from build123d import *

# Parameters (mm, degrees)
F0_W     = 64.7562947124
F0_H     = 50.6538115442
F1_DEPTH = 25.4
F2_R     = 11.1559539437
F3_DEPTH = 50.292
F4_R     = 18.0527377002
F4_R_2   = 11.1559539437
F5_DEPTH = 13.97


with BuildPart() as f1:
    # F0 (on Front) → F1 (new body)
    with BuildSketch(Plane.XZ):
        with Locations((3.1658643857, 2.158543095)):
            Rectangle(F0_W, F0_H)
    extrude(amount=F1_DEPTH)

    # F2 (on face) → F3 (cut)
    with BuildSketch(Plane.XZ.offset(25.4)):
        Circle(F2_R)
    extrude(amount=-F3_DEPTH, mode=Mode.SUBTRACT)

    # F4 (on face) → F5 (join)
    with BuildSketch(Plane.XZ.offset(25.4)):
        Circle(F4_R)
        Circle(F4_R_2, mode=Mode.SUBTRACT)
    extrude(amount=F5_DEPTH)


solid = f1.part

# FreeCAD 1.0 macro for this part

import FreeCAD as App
import Part
import Sketcher

V = App.Vector
Q = App.Units.Quantity


def add_polygon(sketch, points):
    """Adds a closed chain of lines whose ends are joined by coincident constraints."""
    first, n = sketch.GeometryCount, len(points)
    for a, b in zip(points, points[1:] + points[:1]):
        sketch.addGeometry(Part.LineSegment(App.Vector(*a, 0), App.Vector(*b, 0)), False)
    for i in range(n):
        sketch.addConstraint(Sketcher.Constraint("Coincident", first + i, 2, first + (i + 1) % n, 1))

doc = App.newDocument("Part")
params = doc.addObject("Spreadsheet::Sheet", "Params")
for row, (alias, value) in enumerate([
    ("pad1_length", "1 in"),
    ("pocket1_length", "1.98 in"),
    ("pad2_length", "0.55 in"),
], start=1):
    params.set(f"A{row}", alias)
    params.set(f"B{row}", "=" + value)
    params.setAlias(f"B{row}", alias)

body = doc.addObject("PartDesign::Body", "Body")

# Sketch on XZ plane
sketch1 = body.newObject("Sketcher::SketchObject", "Sketch")
sketch1.AttachmentSupport = (doc.getObject("XZ_Plane"), [""])
sketch1.MapMode = "FlatFace"
add_polygon(sketch1, [(-29.212283, 27.485449), (-29.212283, -23.168363), (35.544012, -23.168363), (35.544012, 27.485449)])  # lines 0-3
sketch1.addConstraint(Sketcher.Constraint("Vertical", 0))
sketch1.addConstraint(Sketcher.Constraint("Horizontal", 1))
sketch1.addConstraint(Sketcher.Constraint("Vertical", 2))
sketch1.addConstraint(Sketcher.Constraint("Horizontal", 3))
sketch1.addConstraint(Sketcher.Constraint("DistanceY", 0, 2, 0, 1, Q("50.653812 mm")))
sketch1.addConstraint(Sketcher.Constraint("DistanceX", 1, 1, 1, 2, Q("64.756295 mm")))
sketch1.addConstraint(Sketcher.Constraint("DistanceX", -1, 1, 1, 2, Q("35.544012 mm")))
sketch1.addConstraint(Sketcher.Constraint("DistanceY", -1, 1, 2, 2, Q("27.485449 mm")))
pad1 = body.newObject("PartDesign::Pad", "Pad")
pad1.Profile = sketch1
pad1.setExpression("Length", "Params.pad1_length")

# Sketch on XZ plane
sketch2 = body.newObject("Sketcher::SketchObject", "Sketch001")
sketch2.AttachmentSupport = (doc.getObject("XZ_Plane"), [""])
sketch2.MapMode = "FlatFace"
sketch2.AttachmentOffset = App.Placement(V(0, 0, 1 * 25.4), App.Rotation())
sketch2.addGeometry(Part.Circle(V(0, 0, 0), V(0, 0, 1), 11.155954), False)
sketch2.addConstraint(Sketcher.Constraint("Coincident", 0, 3, -1, 1))
sketch2.addConstraint(Sketcher.Constraint("Diameter", 0, Q("22.311908 mm")))
pocket1 = body.newObject("PartDesign::Pocket", "Pocket")
pocket1.Profile = sketch2
pocket1.setExpression("Length", "Params.pocket1_length")

# Sketch on XZ plane
sketch3 = body.newObject("Sketcher::SketchObject", "Sketch002")
sketch3.AttachmentSupport = (doc.getObject("XZ_Plane"), [""])
sketch3.MapMode = "FlatFace"
sketch3.AttachmentOffset = App.Placement(V(0, 0, 1 * 25.4), App.Rotation())
sketch3.addGeometry(Part.Circle(V(0, 0, 0), V(0, 0, 1), 18.052738), False)
sketch3.addGeometry(Part.Circle(V(0, 0, 0), V(0, 0, 1), 11.155954), False)
sketch3.addConstraint(Sketcher.Constraint("Coincident", 0, 3, -1, 1))
sketch3.addConstraint(Sketcher.Constraint("Coincident", 1, 3, -1, 1))
sketch3.addConstraint(Sketcher.Constraint("Diameter", 0, Q("36.105475 mm")))
sketch3.addConstraint(Sketcher.Constraint("Diameter", 1, Q("22.311908 mm")))
pad2 = body.newObject("PartDesign::Pad", "Pad001")
pad2.Profile = sketch3
pad2.setExpression("Length", "Params.pad2_length")

doc.recompute()
